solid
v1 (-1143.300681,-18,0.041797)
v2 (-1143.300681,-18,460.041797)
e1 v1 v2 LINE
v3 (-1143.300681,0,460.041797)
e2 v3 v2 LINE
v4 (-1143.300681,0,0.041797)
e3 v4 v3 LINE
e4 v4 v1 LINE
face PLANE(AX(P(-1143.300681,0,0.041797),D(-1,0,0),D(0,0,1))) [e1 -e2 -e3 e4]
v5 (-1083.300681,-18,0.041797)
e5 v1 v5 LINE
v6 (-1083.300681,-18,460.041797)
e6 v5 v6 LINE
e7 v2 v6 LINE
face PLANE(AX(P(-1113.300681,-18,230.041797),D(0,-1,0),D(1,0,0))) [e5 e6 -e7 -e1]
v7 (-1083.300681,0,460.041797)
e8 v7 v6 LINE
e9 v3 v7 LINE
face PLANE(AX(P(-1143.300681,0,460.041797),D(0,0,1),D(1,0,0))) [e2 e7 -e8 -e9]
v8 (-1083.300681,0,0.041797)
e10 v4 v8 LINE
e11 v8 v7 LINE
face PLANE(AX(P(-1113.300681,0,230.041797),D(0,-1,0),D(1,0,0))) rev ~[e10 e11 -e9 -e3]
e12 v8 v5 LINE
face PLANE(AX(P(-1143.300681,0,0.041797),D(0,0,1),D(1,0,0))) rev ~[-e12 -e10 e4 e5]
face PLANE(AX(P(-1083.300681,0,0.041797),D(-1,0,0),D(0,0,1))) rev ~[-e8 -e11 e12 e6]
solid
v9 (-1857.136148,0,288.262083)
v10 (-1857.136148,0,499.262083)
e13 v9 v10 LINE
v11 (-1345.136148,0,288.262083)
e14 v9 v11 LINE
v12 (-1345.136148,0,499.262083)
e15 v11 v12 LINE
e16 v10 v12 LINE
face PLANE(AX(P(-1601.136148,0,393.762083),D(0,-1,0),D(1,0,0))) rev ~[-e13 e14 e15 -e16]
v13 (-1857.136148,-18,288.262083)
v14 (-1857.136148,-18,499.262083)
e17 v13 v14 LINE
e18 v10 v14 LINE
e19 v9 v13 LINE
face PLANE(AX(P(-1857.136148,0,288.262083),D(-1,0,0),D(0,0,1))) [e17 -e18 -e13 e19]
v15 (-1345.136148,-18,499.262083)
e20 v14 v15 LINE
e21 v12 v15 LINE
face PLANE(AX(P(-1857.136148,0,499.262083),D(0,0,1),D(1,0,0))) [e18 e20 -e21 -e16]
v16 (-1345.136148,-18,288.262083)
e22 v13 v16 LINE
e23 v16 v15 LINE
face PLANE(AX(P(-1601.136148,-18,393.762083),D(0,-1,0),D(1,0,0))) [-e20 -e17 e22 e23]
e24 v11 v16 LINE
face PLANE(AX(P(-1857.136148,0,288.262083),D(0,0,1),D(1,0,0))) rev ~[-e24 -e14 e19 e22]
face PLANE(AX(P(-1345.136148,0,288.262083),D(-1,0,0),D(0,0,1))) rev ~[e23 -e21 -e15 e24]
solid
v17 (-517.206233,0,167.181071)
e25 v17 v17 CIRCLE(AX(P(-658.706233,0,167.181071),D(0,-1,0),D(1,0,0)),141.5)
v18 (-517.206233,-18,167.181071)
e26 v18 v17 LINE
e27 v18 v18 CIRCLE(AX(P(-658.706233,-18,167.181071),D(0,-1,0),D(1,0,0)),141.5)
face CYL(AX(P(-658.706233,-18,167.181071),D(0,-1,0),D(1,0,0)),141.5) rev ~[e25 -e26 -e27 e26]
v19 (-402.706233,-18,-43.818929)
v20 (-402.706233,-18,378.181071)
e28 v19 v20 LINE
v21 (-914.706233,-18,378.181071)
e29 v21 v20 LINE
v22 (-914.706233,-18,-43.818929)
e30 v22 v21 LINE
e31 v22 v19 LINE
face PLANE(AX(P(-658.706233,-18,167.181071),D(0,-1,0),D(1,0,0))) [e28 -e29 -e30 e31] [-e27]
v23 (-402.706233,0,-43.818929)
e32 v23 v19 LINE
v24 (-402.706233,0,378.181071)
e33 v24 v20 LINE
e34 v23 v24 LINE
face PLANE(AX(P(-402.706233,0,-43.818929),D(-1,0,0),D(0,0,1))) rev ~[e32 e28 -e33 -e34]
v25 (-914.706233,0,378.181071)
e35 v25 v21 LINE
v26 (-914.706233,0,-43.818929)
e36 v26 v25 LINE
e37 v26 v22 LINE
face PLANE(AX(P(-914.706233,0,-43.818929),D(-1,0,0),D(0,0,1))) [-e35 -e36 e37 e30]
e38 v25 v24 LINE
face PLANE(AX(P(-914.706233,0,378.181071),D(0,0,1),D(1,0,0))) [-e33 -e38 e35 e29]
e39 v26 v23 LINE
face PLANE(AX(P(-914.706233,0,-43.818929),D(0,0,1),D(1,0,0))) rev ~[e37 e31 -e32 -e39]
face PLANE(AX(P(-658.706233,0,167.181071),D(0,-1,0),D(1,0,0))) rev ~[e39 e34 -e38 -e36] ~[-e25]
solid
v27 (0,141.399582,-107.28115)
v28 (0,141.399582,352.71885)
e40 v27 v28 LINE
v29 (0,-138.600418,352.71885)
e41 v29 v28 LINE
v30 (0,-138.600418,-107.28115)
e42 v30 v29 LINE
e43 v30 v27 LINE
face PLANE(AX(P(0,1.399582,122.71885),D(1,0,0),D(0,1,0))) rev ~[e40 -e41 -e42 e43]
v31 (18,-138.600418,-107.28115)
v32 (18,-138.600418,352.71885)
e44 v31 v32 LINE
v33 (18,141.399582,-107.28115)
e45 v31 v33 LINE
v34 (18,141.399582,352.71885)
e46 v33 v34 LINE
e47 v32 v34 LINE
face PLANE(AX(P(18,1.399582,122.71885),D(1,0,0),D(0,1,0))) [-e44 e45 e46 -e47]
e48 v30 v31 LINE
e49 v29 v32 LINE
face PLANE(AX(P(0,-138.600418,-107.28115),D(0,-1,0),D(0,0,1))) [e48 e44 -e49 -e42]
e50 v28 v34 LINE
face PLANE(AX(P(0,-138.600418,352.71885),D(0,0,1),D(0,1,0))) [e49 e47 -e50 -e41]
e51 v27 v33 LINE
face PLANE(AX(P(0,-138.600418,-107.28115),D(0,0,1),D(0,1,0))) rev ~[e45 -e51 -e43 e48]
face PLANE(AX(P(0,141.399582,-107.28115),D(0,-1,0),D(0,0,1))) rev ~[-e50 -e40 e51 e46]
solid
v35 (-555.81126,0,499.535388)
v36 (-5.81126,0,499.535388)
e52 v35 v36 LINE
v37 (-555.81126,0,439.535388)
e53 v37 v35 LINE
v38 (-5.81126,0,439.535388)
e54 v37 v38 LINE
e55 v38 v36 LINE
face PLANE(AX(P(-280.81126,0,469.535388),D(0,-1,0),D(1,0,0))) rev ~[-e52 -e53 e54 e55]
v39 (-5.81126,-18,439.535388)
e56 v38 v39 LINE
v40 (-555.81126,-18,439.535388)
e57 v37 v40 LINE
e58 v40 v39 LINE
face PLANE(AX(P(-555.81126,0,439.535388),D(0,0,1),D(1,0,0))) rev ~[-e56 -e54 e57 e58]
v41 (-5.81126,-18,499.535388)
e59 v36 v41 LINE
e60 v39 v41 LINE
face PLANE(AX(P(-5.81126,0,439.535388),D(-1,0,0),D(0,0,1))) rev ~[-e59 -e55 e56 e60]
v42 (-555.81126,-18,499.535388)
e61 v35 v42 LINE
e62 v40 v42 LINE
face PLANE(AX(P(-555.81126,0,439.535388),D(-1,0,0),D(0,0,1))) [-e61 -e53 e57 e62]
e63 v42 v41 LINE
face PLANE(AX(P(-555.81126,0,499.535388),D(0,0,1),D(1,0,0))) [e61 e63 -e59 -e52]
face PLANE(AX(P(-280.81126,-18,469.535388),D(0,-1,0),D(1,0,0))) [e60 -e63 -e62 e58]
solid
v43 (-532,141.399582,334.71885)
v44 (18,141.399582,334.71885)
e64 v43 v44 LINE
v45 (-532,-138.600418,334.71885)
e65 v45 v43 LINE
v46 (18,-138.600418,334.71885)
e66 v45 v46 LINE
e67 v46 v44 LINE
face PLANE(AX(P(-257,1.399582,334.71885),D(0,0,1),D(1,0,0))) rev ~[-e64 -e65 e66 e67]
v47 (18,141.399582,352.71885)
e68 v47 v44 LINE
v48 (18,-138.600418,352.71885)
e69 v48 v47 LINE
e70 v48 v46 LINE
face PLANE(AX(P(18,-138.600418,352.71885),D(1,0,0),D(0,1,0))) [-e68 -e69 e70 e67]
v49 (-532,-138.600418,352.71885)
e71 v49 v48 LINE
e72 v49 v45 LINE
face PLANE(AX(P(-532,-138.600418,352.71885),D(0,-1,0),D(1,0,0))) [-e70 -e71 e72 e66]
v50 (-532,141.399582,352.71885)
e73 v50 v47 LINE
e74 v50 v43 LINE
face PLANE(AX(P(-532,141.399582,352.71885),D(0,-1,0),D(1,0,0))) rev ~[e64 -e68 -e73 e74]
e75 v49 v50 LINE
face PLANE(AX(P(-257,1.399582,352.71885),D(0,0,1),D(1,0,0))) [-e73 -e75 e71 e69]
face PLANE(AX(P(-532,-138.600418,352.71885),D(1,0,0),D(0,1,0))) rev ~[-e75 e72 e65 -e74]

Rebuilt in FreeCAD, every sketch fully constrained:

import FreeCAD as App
import Part
import Sketcher
from FreeCAD import Vector


def add_polygon(sketch, points):
    """Adds a closed chain of lines whose ends are joined by coincident constraints."""
    first, n = sketch.GeometryCount, len(points)
    for a, b in zip(points, points[1:] + points[:1]):
        sketch.addGeometry(Part.LineSegment(App.Vector(*a, 0), App.Vector(*b, 0)), False)
    for i in range(n):
        sketch.addConstraint(Sketcher.Constraint("Coincident", first + i, 2, first + (i + 1) % n, 1))

doc = App.newDocument("Part")
body = doc.addObject("PartDesign::Body", "Body")

# Sketch on YZ plane
sketch1 = body.newObject("Sketcher::SketchObject", "Sketch")
sketch1.AttachmentSupport = (doc.getObject("YZ_Plane"), [""])
sketch1.MapMode = "FlatFace"
add_polygon(sketch1, [(-139, 353), (-139, -107), (141, -107), (141, 353)])  # lines 0-3
sketch1.addConstraint([
    Sketcher.Constraint("Vertical", 0),
    Sketcher.Constraint("Horizontal", 1),
    Sketcher.Constraint("Vertical", 2),
    Sketcher.Constraint("Horizontal", 3),
    Sketcher.Constraint("DistanceX", 1, 1, 1, 2, 280.0),
    Sketcher.Constraint("DistanceY", 0, 2, 0, 1, 460.0),
    Sketcher.Constraint("DistanceY", 0, 2, -1, 1, 107.28115),
    Sketcher.Constraint("DistanceX", 0, 2, -1, 1, 138.600418),
])
pad1 = body.newObject("PartDesign::Pad", "Pad")
pad1.Profile = sketch1
pad1.Length = 18
body2 = doc.addObject("PartDesign::Body", "Body001")

# Sketch on XY plane
sketch2 = body2.newObject("Sketcher::SketchObject", "Sketch001")
sketch2.AttachmentSupport = (doc.getObject("XY_Plane001"), [""])
sketch2.MapMode = "FlatFace"
sketch2.AttachmentOffset = App.Placement(Vector(0, 0, 352.71885), App.Rotation())
add_polygon(sketch2, [(-532, 141), (-532, -139), (18, -139), (18, 141)])  # lines 0-3
sketch2.addConstraint([
    Sketcher.Constraint("Vertical", 0),
    Sketcher.Constraint("Horizontal", 1),
    Sketcher.Constraint("Vertical", 2),
    Sketcher.Constraint("Horizontal", 3),
    Sketcher.Constraint("DistanceX", 1, 1, 1, 2, 550.0),
    Sketcher.Constraint("DistanceY", 0, 2, 0, 1, 280.0),
    Sketcher.Constraint("DistanceX", 0, 2, -1, 1, 532.0),
    Sketcher.Constraint("DistanceY", 0, 2, -1, 1, 138.600418),
])
pad2 = body2.newObject("PartDesign::Pad", "Pad001")
pad2.Profile = sketch2
pad2.Length = 18
pad2.Reversed = True
body3 = doc.addObject("PartDesign::Body", "Body002")

# Sketch on XZ plane
sketch3 = body3.newObject("Sketcher::SketchObject", "Sketch002")
sketch3.AttachmentSupport = (doc.getObject("XZ_Plane002"), [""])
sketch3.MapMode = "FlatFace"
add_polygon(sketch3, [(-556, 500), (-556, 440), (-6, 440), (-6, 500)])  # lines 0-3
sketch3.addConstraint([
    Sketcher.Constraint("Vertical", 0),
    Sketcher.Constraint("Horizontal", 1),
    Sketcher.Constraint("Vertical", 2),
    Sketcher.Constraint("Horizontal", 3),
    Sketcher.Constraint("DistanceX", 1, 1, 1, 2, 550.0),
    Sketcher.Constraint("DistanceY", 0, 2, 0, 1, 60.0),
    Sketcher.Constraint("DistanceX", 0, 2, -1, 1, 555.81126),
    Sketcher.Constraint("DistanceY", -1, 1, 0, 2, 439.535388),
])
pad3 = body3.newObject("PartDesign::Pad", "Pad002")
pad3.Profile = sketch3
pad3.Length = 18
body4 = doc.addObject("PartDesign::Body", "Body003")

# Sketch on XZ plane
sketch4 = body4.newObject("Sketcher::SketchObject", "Sketch003")
sketch4.AttachmentSupport = (doc.getObject("XZ_Plane003"), [""])
sketch4.MapMode = "FlatFace"
add_polygon(sketch4, [(-1143, 460), (-1143, 0), (-1083, 0), (-1083, 460)])  # lines 0-3
sketch4.addConstraint([
    Sketcher.Constraint("Vertical", 0),
    Sketcher.Constraint("Horizontal", 1),
    Sketcher.Constraint("Vertical", 2),
    Sketcher.Constraint("Horizontal", 3),
    Sketcher.Constraint("DistanceX", 1, 1, 1, 2, 60.0),
    Sketcher.Constraint("DistanceY", 0, 2, 0, 1, 460.0),
    Sketcher.Constraint("DistanceX", 0, 2, -1, 1, 1143.300681),
    Sketcher.Constraint("DistanceY", -1, 1, 0, 2, 0.041797),
])
pad4 = body4.newObject("PartDesign::Pad", "Pad003")
pad4.Profile = sketch4
pad4.Length = 18
body5 = doc.addObject("PartDesign::Body", "Body004")

# Sketch on XZ plane
sketch5 = body5.newObject("Sketcher::SketchObject", "Sketch004")
sketch5.AttachmentSupport = (doc.getObject("XZ_Plane004"), [""])
sketch5.MapMode = "FlatFace"
add_polygon(sketch5, [(-1566, 384), (-1566, -38), (-1541, -38), (-1541, 384)])  # lines 0-3
sketch5.addConstraint([
    Sketcher.Constraint("Vertical", 0),
    Sketcher.Constraint("Horizontal", 1),
    Sketcher.Constraint("Vertical", 2),
    Sketcher.Constraint("Horizontal", 3),
    Sketcher.Constraint("DistanceX", 1, 1, 1, 2, 25.0),
    Sketcher.Constraint("DistanceY", 0, 2, 0, 1, 422.0),
    Sketcher.Constraint("DistanceX", 0, 2, -1, 1, 1566.412302),
    Sketcher.Constraint("DistanceY", 0, 2, -1, 1, 37.532628),
])
pad5 = body5.newObject("PartDesign::Pad", "Pad004")
pad5.Profile = sketch5
pad5.Length = 18
body6 = doc.addObject("PartDesign::Body", "Body005")

# Sketch on XZ plane
sketch6 = body6.newObject("Sketcher::SketchObject", "Sketch005")
sketch6.AttachmentSupport = (doc.getObject("XZ_Plane005"), [""])
sketch6.MapMode = "FlatFace"
add_polygon(sketch6, [(-1498, 605), (-1498, 580), (-1036, 580), (-1036, 605)])  # lines 0-3
sketch6.addConstraint([
    Sketcher.Constraint("Vertical", 0),
    Sketcher.Constraint("Horizontal", 1),
    Sketcher.Constraint("Vertical", 2),
    Sketcher.Constraint("Horizontal", 3),
    Sketcher.Constraint("DistanceX", 1, 1, 1, 2, 462.0),
    Sketcher.Constraint("DistanceY", 0, 2, 0, 1, 25.0),
    Sketcher.Constraint("DistanceX", 0, 2, -1, 1, 1497.772479),
    Sketcher.Constraint("DistanceY", -1, 1, 0, 2, 580.364828),
])
pad6 = body6.newObject("PartDesign::Pad", "Pad005")
pad6.Profile = sketch6
pad6.Length = 18
body7 = doc.addObject("PartDesign::Body", "Body006")

# Sketch on XZ plane
sketch7 = body7.newObject("Sketcher::SketchObject", "Sketch006")
sketch7.AttachmentSupport = (doc.getObject("XZ_Plane006"), [""])
sketch7.MapMode = "FlatFace"
add_polygon(sketch7, [(-1857, 499), (-1857, 288), (-1345, 288), (-1345, 499)])  # lines 0-3
sketch7.addConstraint([
    Sketcher.Constraint("Vertical", 0),
    Sketcher.Constraint("Horizontal", 1),
    Sketcher.Constraint("Vertical", 2),
    Sketcher.Constraint("Horizontal", 3),
    Sketcher.Constraint("DistanceX", 1, 1, 1, 2, 512.0),
    Sketcher.Constraint("DistanceY", 0, 2, 0, 1, 211.0),
    Sketcher.Constraint("DistanceX", 0, 2, -1, 1, 1857.136148),
    Sketcher.Constraint("DistanceY", -1, 1, 0, 2, 288.262083),
])
pad7 = body7.newObject("PartDesign::Pad", "Pad006")
pad7.Profile = sketch7
pad7.Length = 18
body8 = doc.addObject("PartDesign::Body", "Body007")

# Sketch on XZ plane
sketch8 = body8.newObject("Sketcher::SketchObject", "Sketch007")
sketch8.AttachmentSupport = (doc.getObject("XZ_Plane007"), [""])
sketch8.MapMode = "FlatFace"
add_polygon(sketch8, [(-915, 378), (-915, -44), (-403, -44), (-403, 378)])  # lines 0-3
sketch8.addConstraint([
    Sketcher.Constraint("Vertical", 0),
    Sketcher.Constraint("Horizontal", 1),
    Sketcher.Constraint("Vertical", 2),
    Sketcher.Constraint("Horizontal", 3),
    Sketcher.Constraint("DistanceX", 1, 1, 1, 2, 512.0),
    Sketcher.Constraint("DistanceY", 0, 2, 0, 1, 422.0),
    Sketcher.Constraint("DistanceY", 0, 2, -1, 1, 43.818929),
    Sketcher.Constraint("DistanceX", 0, 2, -1, 1, 914.706233),
])
pad8 = body8.newObject("PartDesign::Pad", "Pad007")
pad8.Profile = sketch8
pad8.Length = 18

# Sketch on XZ plane
sketch9 = body8.newObject("Sketcher::SketchObject", "Sketch008")
sketch9.AttachmentSupport = (doc.getObject("XZ_Plane007"), [""])
sketch9.MapMode = "FlatFace"
sketch9.AttachmentOffset = App.Placement(Vector(0, 0, 18), App.Rotation())
sketch9.addGeometry(Part.Circle(Vector(-659, 167, 0), Vector(0, 0, 1), 142), False)
sketch9.addConstraint([
    Sketcher.Constraint("Diameter", 0, 283.0),
    Sketcher.Constraint("DistanceY", -1, 1, 0, 3, 167.181071),
    Sketcher.Constraint("DistanceX", 0, 3, -1, 1, 658.706233),
])
pocket1 = body8.newObject("PartDesign::Pocket", "Pocket")
pocket1.Profile = sketch9
pocket1.Type = "ThroughAll"
body5.Visibility = False
body6.Visibility = False

doc.recompute()
